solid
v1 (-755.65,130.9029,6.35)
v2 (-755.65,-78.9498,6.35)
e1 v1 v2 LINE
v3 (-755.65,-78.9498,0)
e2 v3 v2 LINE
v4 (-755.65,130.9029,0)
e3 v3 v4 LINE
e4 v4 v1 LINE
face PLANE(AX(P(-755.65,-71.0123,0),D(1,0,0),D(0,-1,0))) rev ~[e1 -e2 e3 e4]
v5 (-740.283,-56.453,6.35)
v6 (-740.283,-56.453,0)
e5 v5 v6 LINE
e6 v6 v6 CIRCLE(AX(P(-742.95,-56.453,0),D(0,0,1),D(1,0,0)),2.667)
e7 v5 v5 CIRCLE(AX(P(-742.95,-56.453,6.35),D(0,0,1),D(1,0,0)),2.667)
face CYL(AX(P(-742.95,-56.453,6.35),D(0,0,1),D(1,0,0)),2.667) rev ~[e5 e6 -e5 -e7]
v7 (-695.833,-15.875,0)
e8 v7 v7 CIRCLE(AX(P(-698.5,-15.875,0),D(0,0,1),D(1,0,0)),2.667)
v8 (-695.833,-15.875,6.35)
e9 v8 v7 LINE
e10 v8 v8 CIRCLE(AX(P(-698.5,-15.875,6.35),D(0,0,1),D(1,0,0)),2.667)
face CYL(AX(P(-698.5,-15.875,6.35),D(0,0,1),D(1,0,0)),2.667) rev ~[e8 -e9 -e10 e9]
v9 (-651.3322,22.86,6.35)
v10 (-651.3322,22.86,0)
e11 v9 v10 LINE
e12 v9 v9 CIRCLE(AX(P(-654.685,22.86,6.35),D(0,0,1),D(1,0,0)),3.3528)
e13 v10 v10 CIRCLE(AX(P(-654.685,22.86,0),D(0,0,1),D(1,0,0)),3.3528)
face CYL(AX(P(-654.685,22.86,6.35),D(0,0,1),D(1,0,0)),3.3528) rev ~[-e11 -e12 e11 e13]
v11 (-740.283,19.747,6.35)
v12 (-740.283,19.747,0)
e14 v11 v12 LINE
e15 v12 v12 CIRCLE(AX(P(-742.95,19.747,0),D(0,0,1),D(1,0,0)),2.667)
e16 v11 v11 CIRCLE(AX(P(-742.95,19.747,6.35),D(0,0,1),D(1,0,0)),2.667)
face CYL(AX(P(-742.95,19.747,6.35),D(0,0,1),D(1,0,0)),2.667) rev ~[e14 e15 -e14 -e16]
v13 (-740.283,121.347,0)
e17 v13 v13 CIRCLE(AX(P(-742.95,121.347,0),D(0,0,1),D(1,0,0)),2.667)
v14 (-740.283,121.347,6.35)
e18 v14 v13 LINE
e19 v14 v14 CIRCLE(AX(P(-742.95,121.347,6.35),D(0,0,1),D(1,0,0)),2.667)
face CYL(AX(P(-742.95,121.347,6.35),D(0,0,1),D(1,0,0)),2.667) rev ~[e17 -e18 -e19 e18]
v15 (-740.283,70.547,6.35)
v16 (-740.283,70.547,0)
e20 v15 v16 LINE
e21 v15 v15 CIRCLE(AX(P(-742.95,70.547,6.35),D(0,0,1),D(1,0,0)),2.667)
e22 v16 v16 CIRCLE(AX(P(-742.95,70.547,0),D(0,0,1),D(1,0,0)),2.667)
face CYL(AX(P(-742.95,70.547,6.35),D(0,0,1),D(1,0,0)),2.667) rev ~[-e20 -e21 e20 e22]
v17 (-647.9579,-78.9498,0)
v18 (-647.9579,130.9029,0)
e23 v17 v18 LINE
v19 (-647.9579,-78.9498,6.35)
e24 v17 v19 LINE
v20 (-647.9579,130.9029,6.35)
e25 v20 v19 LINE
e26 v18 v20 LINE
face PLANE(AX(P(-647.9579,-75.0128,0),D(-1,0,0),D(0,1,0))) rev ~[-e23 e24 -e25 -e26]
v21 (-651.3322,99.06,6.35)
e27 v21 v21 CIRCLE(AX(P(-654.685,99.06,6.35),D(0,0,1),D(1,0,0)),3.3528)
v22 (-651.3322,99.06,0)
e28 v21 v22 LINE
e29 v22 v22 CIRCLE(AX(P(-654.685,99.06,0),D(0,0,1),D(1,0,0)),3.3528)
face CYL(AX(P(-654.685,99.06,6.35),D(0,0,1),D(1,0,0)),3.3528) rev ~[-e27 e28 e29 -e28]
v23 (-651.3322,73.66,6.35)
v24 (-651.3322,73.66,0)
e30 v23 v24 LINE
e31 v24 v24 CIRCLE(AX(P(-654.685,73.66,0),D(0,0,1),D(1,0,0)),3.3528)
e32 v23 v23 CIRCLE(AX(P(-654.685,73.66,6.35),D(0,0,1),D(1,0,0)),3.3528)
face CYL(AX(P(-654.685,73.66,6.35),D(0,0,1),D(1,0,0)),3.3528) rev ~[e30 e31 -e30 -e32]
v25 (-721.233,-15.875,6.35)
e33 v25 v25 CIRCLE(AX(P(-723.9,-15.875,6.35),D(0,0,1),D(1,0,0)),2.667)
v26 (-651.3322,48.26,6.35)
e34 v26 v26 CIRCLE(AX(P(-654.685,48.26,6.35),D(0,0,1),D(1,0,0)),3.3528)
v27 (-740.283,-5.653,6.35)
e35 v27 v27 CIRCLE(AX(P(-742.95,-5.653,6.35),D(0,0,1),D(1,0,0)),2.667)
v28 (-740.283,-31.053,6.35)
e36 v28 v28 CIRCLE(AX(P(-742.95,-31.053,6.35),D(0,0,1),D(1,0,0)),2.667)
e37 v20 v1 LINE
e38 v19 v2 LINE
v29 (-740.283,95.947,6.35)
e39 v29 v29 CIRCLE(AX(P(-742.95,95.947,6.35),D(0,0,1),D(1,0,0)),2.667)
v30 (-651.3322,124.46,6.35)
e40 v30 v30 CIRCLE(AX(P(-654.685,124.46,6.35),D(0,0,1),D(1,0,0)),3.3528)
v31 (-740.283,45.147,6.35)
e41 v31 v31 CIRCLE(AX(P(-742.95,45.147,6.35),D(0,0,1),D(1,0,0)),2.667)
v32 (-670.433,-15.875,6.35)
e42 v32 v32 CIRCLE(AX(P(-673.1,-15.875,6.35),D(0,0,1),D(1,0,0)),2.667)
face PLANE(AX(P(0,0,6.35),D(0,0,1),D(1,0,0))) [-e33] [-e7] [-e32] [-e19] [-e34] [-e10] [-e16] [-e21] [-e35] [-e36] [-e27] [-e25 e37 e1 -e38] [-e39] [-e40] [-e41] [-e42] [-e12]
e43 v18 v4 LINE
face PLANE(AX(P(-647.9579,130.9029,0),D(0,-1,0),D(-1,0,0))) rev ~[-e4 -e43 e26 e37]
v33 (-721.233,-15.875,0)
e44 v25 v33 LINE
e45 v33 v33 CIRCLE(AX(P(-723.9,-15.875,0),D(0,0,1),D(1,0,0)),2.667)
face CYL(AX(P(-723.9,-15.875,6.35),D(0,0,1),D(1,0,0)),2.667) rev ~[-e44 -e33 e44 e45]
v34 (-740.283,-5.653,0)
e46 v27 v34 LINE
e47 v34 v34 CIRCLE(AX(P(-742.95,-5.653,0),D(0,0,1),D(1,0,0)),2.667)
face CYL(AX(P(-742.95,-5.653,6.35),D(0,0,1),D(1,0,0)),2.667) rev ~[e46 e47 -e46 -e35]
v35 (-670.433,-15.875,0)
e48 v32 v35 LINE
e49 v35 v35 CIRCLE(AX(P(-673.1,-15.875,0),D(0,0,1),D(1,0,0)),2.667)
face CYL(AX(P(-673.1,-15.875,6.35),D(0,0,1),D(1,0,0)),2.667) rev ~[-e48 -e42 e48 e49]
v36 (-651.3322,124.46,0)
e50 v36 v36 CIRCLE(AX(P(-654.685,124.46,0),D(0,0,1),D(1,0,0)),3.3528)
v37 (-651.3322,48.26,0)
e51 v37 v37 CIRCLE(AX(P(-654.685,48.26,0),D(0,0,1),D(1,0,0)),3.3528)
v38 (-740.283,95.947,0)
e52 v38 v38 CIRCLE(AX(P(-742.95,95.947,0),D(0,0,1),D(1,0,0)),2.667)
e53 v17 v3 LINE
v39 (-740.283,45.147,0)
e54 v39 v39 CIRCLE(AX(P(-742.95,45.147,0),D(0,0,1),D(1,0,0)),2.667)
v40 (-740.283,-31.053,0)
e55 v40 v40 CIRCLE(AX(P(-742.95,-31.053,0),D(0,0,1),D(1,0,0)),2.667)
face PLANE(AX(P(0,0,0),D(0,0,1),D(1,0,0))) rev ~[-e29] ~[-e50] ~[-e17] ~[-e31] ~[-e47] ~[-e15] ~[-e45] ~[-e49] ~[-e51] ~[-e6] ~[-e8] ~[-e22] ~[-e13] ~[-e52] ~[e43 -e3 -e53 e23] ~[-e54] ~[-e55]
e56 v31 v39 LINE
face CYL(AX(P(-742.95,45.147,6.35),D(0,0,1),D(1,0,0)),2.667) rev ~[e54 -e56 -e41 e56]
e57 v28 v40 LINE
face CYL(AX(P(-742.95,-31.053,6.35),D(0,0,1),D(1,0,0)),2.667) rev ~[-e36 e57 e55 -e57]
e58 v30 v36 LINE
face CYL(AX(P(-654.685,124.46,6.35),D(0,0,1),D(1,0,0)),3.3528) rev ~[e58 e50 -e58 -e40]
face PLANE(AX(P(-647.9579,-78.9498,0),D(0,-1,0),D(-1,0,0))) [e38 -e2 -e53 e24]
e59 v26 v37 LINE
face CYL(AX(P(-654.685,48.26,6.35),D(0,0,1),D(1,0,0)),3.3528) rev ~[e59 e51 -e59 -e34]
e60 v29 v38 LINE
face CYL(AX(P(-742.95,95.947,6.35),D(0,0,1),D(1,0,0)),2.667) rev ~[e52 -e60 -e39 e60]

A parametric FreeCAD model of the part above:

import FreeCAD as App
import Part
import Sketcher
from FreeCAD import Vector
Q = App.Units.Quantity

doc = App.newDocument("Part")
params = doc.addObject("Spreadsheet::Sheet", "Params")
for row, (alias, value) in enumerate([
    ("pad1_length", "0.25 in"),
    ("sketch2_diameter", "0.264 in"),
    ("pocket1_length", "0.25 in"),
    ("sketch3_diameter", "0.21 in"),
    ("pocket2_length", "0.25 in"),
], start=1):
    params.set(f"A{row}", alias)
    params.set(f"B{row}", "=" + value)
    params.setAlias(f"B{row}", alias)

body = doc.addObject("PartDesign::Body", "Body")

# Sketch on XY plane
sketch1 = body.newObject("Sketcher::SketchObject", "Sketch")
sketch1.AttachmentSupport = (doc.getObject("XY_Plane"), [""])
sketch1.MapMode = "FlatFace"
sketch1.addGeometry(Part.LineSegment(Vector(-648, 131, 0), Vector(-756, 131, 0)), False)
sketch1.addGeometry(Part.LineSegment(Vector(-756, 131, 0), Vector(-756, -79, 0)), False)
sketch1.addGeometry(Part.LineSegment(Vector(-756, -79, 0), Vector(-648, -79, 0)), False)
sketch1.addGeometry(Part.LineSegment(Vector(-648, -79, 0), Vector(-648, 131, 0)), False)
sketch1.addConstraint(Sketcher.Constraint("Coincident", 0, 2, 1, 1))
sketch1.addConstraint(Sketcher.Constraint("Coincident", 1, 2, 2, 1))
sketch1.addConstraint(Sketcher.Constraint("Coincident", 2, 2, 3, 1))
sketch1.addConstraint(Sketcher.Constraint("Coincident", 3, 2, 0, 1))
sketch1.addConstraint(Sketcher.Constraint("Horizontal", 0))
sketch1.addConstraint(Sketcher.Constraint("Vertical", 1))
sketch1.addConstraint(Sketcher.Constraint("Horizontal", 2))
sketch1.addConstraint(Sketcher.Constraint("Vertical", 3))
sketch1.addConstraint(Sketcher.Constraint("DistanceX", 0, 2, -1, 1, Q("29.75 in")))
sketch1.addConstraint(Sketcher.Constraint("DistanceX", 0, 2, 0, 1, Q("107.692 mm")))
sketch1.addConstraint(Sketcher.Constraint("DistanceY", 1, 2, 1, 1, Q("209.8527 mm")))
sketch1.addConstraint(Sketcher.Constraint("DistanceY", -1, 1, 0, 2, Q("130.903 mm")))
pad1 = body.newObject("PartDesign::Pad", "Pad")
pad1.Profile = sketch1
pad1.setExpression("Length", "Params.pad1_length")

# Sketch on XY plane
sketch2 = body.newObject("Sketcher::SketchObject", "Sketch001")
sketch2.AttachmentSupport = (doc.getObject("XY_Plane"), [""])
sketch2.MapMode = "FlatFace"
sketch2.AttachmentOffset = App.Placement(Vector(0, 0, 0.25 * 25.4), App.Rotation())
sketch2.addGeometry(Part.Circle(Vector(-654.7, 22.9, 0), Vector(0, 0, 1), 3.4), False)
sketch2.addGeometry(Part.Circle(Vector(-654.7, 48.3, 0), Vector(0, 0, 1), 3.4), False)
sketch2.addGeometry(Part.Circle(Vector(-654.7, 73.7, 0), Vector(0, 0, 1), 3.4), False)
sketch2.addGeometry(Part.Circle(Vector(-654.7, 99.1, 0), Vector(0, 0, 1), 3.4), False)
sketch2.addGeometry(Part.Circle(Vector(-654.7, 124.5, 0), Vector(0, 0, 1), 3.4), False)
sketch2.addConstraint(Sketcher.Constraint("Equal", 0, 1))
sketch2.addConstraint(Sketcher.Constraint("Equal", 1, 2))
sketch2.addConstraint(Sketcher.Constraint("Equal", 2, 3))
sketch2.addConstraint(Sketcher.Constraint("Equal", 3, 4))
sketch2.addConstraint(Sketcher.Constraint("Vertical", 0, 3, 1, 3))
sketch2.addConstraint(Sketcher.Constraint("Vertical", 1, 3, 2, 3))
sketch2.addConstraint(Sketcher.Constraint("Vertical", 2, 3, 3, 3))
sketch2.addConstraint(Sketcher.Constraint("Vertical", 3, 3, 4, 3))
sketch2.addConstraint(Sketcher.Constraint("Diameter", 0, Q("0.264 in")))
sketch2.addConstraint(Sketcher.Constraint("DistanceY", 0, 3, 1, 3, Q("1 in")))
sketch2.addConstraint(Sketcher.Constraint("DistanceY", 1, 3, 2, 3, Q("1 in")))
sketch2.addConstraint(Sketcher.Constraint("DistanceY", 2, 3, 3, 3, Q("1 in")))
sketch2.addConstraint(Sketcher.Constraint("DistanceY", 3, 3, 4, 3, Q("1 in")))
sketch2.addConstraint(Sketcher.Constraint("DistanceY", -1, 1, 0, 3, Q("0.9 in")))
sketch2.addConstraint(Sketcher.Constraint("DistanceX", 0, 3, -1, 1, Q("25.775 in")))
sketch2.setExpression("Constraints[8]", "Params.sketch2_diameter")
pocket1 = body.newObject("PartDesign::Pocket", "Pocket")
pocket1.Profile = sketch2
pocket1.setExpression("Length", "Params.pocket1_length")

# Sketch on XY plane
sketch3 = body.newObject("Sketcher::SketchObject", "Sketch002")
sketch3.AttachmentSupport = (doc.getObject("XY_Plane"), [""])
sketch3.MapMode = "FlatFace"
sketch3.AttachmentOffset = App.Placement(Vector(0, 0, 0.25 * 25.4), App.Rotation())
sketch3.addGeometry(Part.Circle(Vector(-673.1, -15.9, 0), Vector(0, 0, 1), 2.7), False)
sketch3.addGeometry(Part.Circle(Vector(-698.5, -15.9, 0), Vector(0, 0, 1), 2.7), False)
sketch3.addGeometry(Part.Circle(Vector(-723.9, -15.9, 0), Vector(0, 0, 1), 2.7), False)
sketch3.addGeometry(Part.Circle(Vector(-743, 121.3, 0), Vector(0, 0, 1), 2.7), False)
sketch3.addGeometry(Part.Circle(Vector(-743, 95.9, 0), Vector(0, 0, 1), 2.7), False)
sketch3.addGeometry(Part.Circle(Vector(-743, 70.5, 0), Vector(0, 0, 1), 2.7), False)
sketch3.addGeometry(Part.Circle(Vector(-743, 45.1, 0), Vector(0, 0, 1), 2.7), False)
sketch3.addGeometry(Part.Circle(Vector(-743, 19.7, 0), Vector(0, 0, 1), 2.7), False)
sketch3.addGeometry(Part.Circle(Vector(-743, -5.7, 0), Vector(0, 0, 1), 2.7), False)
sketch3.addGeometry(Part.Circle(Vector(-743, -31.1, 0), Vector(0, 0, 1), 2.7), False)
sketch3.addGeometry(Part.Circle(Vector(-743, -56.5, 0), Vector(0, 0, 1), 2.7), False)
sketch3.addConstraint(Sketcher.Constraint("Equal", 0, 1))
sketch3.addConstraint(Sketcher.Constraint("Equal", 1, 2))
sketch3.addConstraint(Sketcher.Constraint("Equal", 2, 3))
sketch3.addConstraint(Sketcher.Constraint("Equal", 3, 4))
sketch3.addConstraint(Sketcher.Constraint("Equal", 4, 5))
sketch3.addConstraint(Sketcher.Constraint("Equal", 5, 6))
sketch3.addConstraint(Sketcher.Constraint("Equal", 6, 7))
sketch3.addConstraint(Sketcher.Constraint("Equal", 7, 8))
sketch3.addConstraint(Sketcher.Constraint("Equal", 8, 9))
sketch3.addConstraint(Sketcher.Constraint("Equal", 9, 10))
sketch3.addConstraint(Sketcher.Constraint("Horizontal", 0, 3, 1, 3))
sketch3.addConstraint(Sketcher.Constraint("Horizontal", 1, 3, 2, 3))
sketch3.addConstraint(Sketcher.Constraint("Vertical", 3, 3, 4, 3))
sketch3.addConstraint(Sketcher.Constraint("Vertical", 4, 3, 5, 3))
sketch3.addConstraint(Sketcher.Constraint("Vertical", 5, 3, 6, 3))
sketch3.addConstraint(Sketcher.Constraint("Vertical", 6, 3, 7, 3))
sketch3.addConstraint(Sketcher.Constraint("Vertical", 7, 3, 8, 3))
sketch3.addConstraint(Sketcher.Constraint("Vertical", 8, 3, 9, 3))
sketch3.addConstraint(Sketcher.Constraint("Vertical", 9, 3, 10, 3))
sketch3.addConstraint(Sketcher.Constraint("Diameter", 0, Q("0.21 in")))
sketch3.addConstraint(Sketcher.Constraint("DistanceX", 1, 3, 0, 3, Q("1 in")))
sketch3.addConstraint(Sketcher.Constraint("DistanceX", 2, 3, 1, 3, Q("1 in")))
sketch3.addConstraint(Sketcher.Constraint("DistanceY", 4, 3, 3, 3, Q("1 in")))
sketch3.addConstraint(Sketcher.Constraint("DistanceY", 5, 3, 4, 3, Q("1 in")))
sketch3.addConstraint(Sketcher.Constraint("DistanceY", 6, 3, 5, 3, Q("1 in")))
sketch3.addConstraint(Sketcher.Constraint("DistanceY", 7, 3, 6, 3, Q("1 in")))
sketch3.addConstraint(Sketcher.Constraint("DistanceY", 8, 3, 7, 3, Q("1 in")))
sketch3.addConstraint(Sketcher.Constraint("DistanceY", 9, 3, 8, 3, Q("1 in")))
sketch3.addConstraint(Sketcher.Constraint("DistanceY", 10, 3, 9, 3, Q("1 in")))
sketch3.addConstraint(Sketcher.Constraint("DistanceX", 0, 3, -1, 1, Q("26.5 in")))
sketch3.addConstraint(Sketcher.Constraint("DistanceX", 3, 3, -1, 1, Q("29.25 in")))
sketch3.addConstraint(Sketcher.Constraint("DistanceY", 0, 3, -1, 1, Q("0.625 in")))
sketch3.addConstraint(Sketcher.Constraint("DistanceY", -1, 1, 3, 3, Q("121.347 mm")))
sketch3.setExpression("Constraints[19]", "Params.sketch3_diameter")
pocket2 = body.newObject("PartDesign::Pocket", "Pocket001")
pocket2.Profile = sketch3
pocket2.setExpression("Length", "Params.pocket2_length")

doc.recompute()
